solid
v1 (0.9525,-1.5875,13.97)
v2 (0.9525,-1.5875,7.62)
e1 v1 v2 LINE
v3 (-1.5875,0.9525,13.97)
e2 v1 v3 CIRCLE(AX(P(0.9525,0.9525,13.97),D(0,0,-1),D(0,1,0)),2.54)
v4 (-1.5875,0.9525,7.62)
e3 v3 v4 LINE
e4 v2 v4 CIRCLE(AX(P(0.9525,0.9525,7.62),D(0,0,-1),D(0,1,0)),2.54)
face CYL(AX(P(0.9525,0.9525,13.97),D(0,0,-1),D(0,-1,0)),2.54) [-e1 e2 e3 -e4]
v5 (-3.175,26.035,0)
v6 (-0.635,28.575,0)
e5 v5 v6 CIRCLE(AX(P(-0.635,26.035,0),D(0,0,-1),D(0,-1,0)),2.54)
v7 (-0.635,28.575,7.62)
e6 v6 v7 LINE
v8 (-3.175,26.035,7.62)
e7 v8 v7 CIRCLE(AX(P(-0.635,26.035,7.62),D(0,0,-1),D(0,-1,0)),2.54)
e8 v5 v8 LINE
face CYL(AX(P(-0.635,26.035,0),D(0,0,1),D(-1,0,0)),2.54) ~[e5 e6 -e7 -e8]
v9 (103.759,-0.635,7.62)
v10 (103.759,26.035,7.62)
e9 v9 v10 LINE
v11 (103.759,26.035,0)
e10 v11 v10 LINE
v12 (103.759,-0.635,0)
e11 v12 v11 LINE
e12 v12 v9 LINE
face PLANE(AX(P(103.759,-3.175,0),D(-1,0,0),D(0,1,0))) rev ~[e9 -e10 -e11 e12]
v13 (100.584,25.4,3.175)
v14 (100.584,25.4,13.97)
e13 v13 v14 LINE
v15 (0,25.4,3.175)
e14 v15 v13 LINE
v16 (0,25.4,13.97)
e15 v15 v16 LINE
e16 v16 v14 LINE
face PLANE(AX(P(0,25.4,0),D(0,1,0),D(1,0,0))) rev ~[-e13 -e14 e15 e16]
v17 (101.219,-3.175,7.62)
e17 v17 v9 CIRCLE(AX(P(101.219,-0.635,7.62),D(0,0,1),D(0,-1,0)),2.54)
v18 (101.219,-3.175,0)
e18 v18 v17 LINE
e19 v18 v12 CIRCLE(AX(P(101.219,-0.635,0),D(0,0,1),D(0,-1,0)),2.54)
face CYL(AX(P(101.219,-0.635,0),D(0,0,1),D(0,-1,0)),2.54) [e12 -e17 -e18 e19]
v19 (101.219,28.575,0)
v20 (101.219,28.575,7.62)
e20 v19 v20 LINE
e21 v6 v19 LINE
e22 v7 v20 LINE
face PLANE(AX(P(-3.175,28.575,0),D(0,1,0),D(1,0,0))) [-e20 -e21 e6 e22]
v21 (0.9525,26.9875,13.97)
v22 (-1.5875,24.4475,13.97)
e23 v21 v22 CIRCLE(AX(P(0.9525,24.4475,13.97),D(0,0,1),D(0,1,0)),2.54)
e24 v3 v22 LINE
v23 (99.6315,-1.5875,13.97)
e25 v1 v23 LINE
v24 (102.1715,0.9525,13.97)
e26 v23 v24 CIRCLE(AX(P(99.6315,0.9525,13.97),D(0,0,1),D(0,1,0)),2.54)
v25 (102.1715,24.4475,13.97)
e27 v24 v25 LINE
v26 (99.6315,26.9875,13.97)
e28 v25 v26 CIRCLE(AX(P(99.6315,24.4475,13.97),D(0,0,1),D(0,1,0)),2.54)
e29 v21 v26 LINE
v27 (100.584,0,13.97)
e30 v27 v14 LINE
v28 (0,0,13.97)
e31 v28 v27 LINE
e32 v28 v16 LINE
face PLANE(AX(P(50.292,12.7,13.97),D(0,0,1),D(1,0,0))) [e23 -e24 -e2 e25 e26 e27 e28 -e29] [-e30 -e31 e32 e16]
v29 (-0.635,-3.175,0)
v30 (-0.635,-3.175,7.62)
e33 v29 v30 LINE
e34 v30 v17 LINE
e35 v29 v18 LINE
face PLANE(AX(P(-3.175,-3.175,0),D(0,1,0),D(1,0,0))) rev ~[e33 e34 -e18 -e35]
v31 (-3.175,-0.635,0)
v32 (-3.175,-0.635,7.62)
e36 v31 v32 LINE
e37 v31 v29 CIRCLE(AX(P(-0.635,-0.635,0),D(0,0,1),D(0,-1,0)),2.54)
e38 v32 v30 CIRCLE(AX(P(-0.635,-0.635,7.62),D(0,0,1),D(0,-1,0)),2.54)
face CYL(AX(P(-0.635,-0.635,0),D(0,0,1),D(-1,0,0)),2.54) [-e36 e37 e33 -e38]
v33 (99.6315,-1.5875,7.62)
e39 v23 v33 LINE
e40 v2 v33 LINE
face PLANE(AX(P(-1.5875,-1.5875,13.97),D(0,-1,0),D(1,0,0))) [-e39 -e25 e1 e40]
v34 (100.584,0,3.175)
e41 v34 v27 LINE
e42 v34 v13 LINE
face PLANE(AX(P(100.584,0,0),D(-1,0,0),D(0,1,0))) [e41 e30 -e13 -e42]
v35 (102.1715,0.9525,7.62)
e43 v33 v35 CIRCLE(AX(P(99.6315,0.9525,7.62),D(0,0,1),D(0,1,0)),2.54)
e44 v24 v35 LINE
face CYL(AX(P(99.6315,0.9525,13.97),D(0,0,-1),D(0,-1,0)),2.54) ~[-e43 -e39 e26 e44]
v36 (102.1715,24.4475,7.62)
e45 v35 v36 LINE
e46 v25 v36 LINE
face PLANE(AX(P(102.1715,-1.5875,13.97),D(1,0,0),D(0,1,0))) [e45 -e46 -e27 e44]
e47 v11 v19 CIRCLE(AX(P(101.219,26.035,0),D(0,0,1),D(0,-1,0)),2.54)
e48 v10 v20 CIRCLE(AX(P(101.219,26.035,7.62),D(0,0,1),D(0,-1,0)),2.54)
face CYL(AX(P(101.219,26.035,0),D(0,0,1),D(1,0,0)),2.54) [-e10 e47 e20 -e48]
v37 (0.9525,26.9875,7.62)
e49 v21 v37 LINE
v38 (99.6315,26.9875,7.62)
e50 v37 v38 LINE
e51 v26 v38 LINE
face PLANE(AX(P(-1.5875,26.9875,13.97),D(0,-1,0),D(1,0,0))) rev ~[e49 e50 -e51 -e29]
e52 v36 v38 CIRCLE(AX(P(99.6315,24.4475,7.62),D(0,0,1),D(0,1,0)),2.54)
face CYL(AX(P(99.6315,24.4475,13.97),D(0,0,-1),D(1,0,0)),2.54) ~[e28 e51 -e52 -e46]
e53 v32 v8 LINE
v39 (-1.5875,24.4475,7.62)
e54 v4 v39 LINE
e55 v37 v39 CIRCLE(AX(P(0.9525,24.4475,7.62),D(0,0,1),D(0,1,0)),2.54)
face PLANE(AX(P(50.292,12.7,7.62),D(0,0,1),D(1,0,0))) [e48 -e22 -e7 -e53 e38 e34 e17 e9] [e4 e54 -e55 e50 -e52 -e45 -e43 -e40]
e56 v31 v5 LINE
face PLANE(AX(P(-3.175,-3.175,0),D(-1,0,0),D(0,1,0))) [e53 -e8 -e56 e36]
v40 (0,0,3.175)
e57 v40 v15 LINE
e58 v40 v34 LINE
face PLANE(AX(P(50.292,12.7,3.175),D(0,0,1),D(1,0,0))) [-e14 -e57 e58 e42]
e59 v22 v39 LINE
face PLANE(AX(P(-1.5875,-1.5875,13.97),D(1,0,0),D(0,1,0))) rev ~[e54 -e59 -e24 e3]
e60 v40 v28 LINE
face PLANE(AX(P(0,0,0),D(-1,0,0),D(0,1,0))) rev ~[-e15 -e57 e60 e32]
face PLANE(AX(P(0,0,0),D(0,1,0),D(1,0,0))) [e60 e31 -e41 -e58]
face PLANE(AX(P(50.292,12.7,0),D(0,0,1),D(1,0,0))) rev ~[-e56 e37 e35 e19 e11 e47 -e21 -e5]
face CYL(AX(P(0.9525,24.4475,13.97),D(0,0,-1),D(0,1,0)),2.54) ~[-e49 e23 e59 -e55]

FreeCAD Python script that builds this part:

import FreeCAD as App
import Part
import Sketcher

V = App.Vector
Q = App.Units.Quantity


def edges_at(feature, points):
    """Names of the edges that pass closest to the given points."""
    edges = feature.Shape.Edges
    near = lambda p: min(range(len(edges)), key=lambda i: edges[i].distToShape(Part.Vertex(*p))[0])
    return sorted({f"Edge{near(p) + 1}" for p in points})


def add_polygon(sketch, points):
    """Adds a closed chain of lines whose ends are joined by coincident constraints."""
    first, n = sketch.GeometryCount, len(points)
    for a, b in zip(points, points[1:] + points[:1]):
        sketch.addGeometry(Part.LineSegment(App.Vector(*a, 0), App.Vector(*b, 0)), False)
    for i in range(n):
        sketch.addConstraint(Sketcher.Constraint("Coincident", first + i, 2, first + (i + 1) % n, 1))

doc = App.newDocument("Part")
body = doc.addObject("PartDesign::Body", "Body")

# Sketch on XY plane
sketch1 = body.newObject("Sketcher::SketchObject", "Sketch")
sketch1.AttachmentSupport = (doc.getObject("XY_Plane"), [""])
sketch1.MapMode = "FlatFace"
add_polygon(sketch1, [(-3, 29), (-3, -3), (104, -3), (104, 29)])  # lines 0-3
add_polygon(sketch1, [(101, 0), (0, 0), (0, 25), (101, 25)])  # lines 4-7
sketch1.addConstraint([
    Sketcher.Constraint("Vertical", 0),
    Sketcher.Constraint("Horizontal", 1),
    Sketcher.Constraint("Vertical", 2),
    Sketcher.Constraint("Horizontal", 3),
    Sketcher.Constraint("Horizontal", 4),
    Sketcher.Constraint("Vertical", 5),
    Sketcher.Constraint("Horizontal", 6),
    Sketcher.Constraint("Vertical", 7),
    Sketcher.Constraint("Coincident", 4, 2, -1, 1),
    Sketcher.Constraint("DistanceY", 5, 1, 5, 2, Q("1 in")),
    Sketcher.Constraint("DistanceX", 1, 1, 1, 2, Q("4.21 in")),
    Sketcher.Constraint("DistanceX", 4, 2, 4, 1, Q("3.96 in")),
    Sketcher.Constraint("DistanceY", 0, 2, 0, 1, Q("1.25 in")),
    Sketcher.Constraint("DistanceX", 0, 2, -1, 1, Q("0.125 in")),
    Sketcher.Constraint("DistanceY", 0, 2, -1, 1, Q("0.125 in")),
])
pad1 = body.newObject("PartDesign::Pad", "Pad")
pad1.Profile = sketch1
pad1.Length = Q("0.55 in")

# Sketch on XY plane
sketch2 = body.newObject("Sketcher::SketchObject", "Sketch001")
sketch2.AttachmentSupport = (doc.getObject("XY_Plane"), [""])
sketch2.MapMode = "FlatFace"
add_polygon(sketch2, [(0, 25), (0, 0), (101, 0), (101, 25)])  # lines 0-3
sketch2.addConstraint([
    Sketcher.Constraint("Vertical", 0),
    Sketcher.Constraint("Horizontal", 1),
    Sketcher.Constraint("Vertical", 2),
    Sketcher.Constraint("Horizontal", 3),
    Sketcher.Constraint("Coincident", 0, 2, -1, 1),
    Sketcher.Constraint("DistanceY", 0, 2, 0, 1, Q("1 in")),
    Sketcher.Constraint("DistanceX", 1, 1, 1, 2, Q("3.96 in")),
])
pad2 = body.newObject("PartDesign::Pad", "Pad001")
pad2.Profile = sketch2
pad2.Length = Q("0.125 in")

# Sketch on XY plane
sketch3 = body.newObject("Sketcher::SketchObject", "Sketch002")
sketch3.AttachmentSupport = (doc.getObject("XY_Plane"), [""])
sketch3.MapMode = "FlatFace"
sketch3.AttachmentOffset = App.Placement(V(0, 0, 0.55 * 25.4), App.Rotation())
add_polygon(sketch3, [(-3, 29), (-3, -3), (104, -3), (104, 29)])  # lines 0-3
add_polygon(sketch3, [(102, -2), (-2, -2), (-2, 27), (102, 27)])  # lines 4-7
sketch3.addConstraint([
    Sketcher.Constraint("Vertical", 0),
    Sketcher.Constraint("Horizontal", 1),
    Sketcher.Constraint("Vertical", 2),
    Sketcher.Constraint("Horizontal", 3),
    Sketcher.Constraint("Horizontal", 4),
    Sketcher.Constraint("Vertical", 5),
    Sketcher.Constraint("Horizontal", 6),
    Sketcher.Constraint("Vertical", 7),
    Sketcher.Constraint("DistanceX", 1, 1, 1, 2, Q("4.21 in")),
    Sketcher.Constraint("DistanceY", 0, 2, 0, 1, Q("1.25 in")),
    Sketcher.Constraint("DistanceX", 4, 2, 4, 1, Q("4.085 in")),
    Sketcher.Constraint("DistanceY", 5, 1, 5, 2, Q("1.125 in")),
    Sketcher.Constraint("DistanceX", 0, 2, -1, 1, Q("0.125 in")),
    Sketcher.Constraint("DistanceY", 0, 2, -1, 1, Q("0.125 in")),
    Sketcher.Constraint("DistanceX", 4, 2, -1, 1, Q("0.0625 in")),
    Sketcher.Constraint("DistanceY", 4, 2, -1, 1, Q("0.0625 in")),
])
pocket1 = body.newObject("PartDesign::Pocket", "Pocket")
pocket1.Profile = sketch3
pocket1.Length = Q("0.25 in")
doc.recompute()

fillet = body.newObject("PartDesign::Fillet", "Fillet")
fillet.Base = (pocket1, edges_at(pocket1, [
    (-1.587, -1.587, 10.795),
    (-3.175, -3.175, 3.81),
    (-1.587, 26.988, 10.795),
    (-3.175, 28.575, 3.81),
    (102.171, -1.587, 10.795),
    (103.759, -3.175, 3.81),
    (103.759, 28.575, 3.81),
    (102.171, 26.988, 10.795),
]))
fillet.Radius = Q("0.1 in")

doc.recompute()
